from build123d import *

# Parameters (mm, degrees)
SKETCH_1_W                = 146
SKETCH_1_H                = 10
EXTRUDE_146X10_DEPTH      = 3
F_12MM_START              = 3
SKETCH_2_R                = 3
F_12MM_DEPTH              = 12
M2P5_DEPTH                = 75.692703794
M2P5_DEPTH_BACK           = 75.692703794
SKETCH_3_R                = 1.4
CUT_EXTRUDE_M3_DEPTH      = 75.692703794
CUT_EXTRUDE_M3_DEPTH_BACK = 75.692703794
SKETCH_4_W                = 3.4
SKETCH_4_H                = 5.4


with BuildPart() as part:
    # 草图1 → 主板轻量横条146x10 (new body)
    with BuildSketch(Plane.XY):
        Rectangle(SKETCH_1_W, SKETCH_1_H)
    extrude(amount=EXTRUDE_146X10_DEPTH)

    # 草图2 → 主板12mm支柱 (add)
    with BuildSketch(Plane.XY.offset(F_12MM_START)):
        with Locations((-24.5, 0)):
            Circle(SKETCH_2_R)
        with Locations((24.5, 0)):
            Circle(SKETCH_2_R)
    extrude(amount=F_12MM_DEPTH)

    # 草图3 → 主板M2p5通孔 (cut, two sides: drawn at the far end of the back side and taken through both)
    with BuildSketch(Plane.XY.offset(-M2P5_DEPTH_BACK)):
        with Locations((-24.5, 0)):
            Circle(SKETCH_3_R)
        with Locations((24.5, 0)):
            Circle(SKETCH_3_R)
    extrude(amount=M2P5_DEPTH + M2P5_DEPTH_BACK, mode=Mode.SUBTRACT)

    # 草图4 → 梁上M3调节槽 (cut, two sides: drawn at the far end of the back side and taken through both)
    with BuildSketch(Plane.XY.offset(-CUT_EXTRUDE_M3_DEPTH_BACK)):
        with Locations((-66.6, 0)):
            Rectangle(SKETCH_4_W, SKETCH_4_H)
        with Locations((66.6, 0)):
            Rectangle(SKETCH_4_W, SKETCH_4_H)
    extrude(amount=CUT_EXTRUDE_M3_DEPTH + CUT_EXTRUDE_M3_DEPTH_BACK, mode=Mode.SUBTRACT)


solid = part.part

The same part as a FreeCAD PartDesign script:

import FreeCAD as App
import Part
import Sketcher
from FreeCAD import Vector

doc = App.newDocument("Part")
body = doc.addObject("PartDesign::Body", "Body")

# Sketch on XY plane
sketch1 = body.newObject("Sketcher::SketchObject", "Sketch")
sketch1.AttachmentSupport = (doc.getObject("XY_Plane"), [""])
sketch1.MapMode = "FlatFace"
sketch1.addGeometry([
    Part.LineSegment(Vector(-73, 5, 0), Vector(-73, -5, 0)),
    Part.LineSegment(Vector(-73, -5, 0), Vector(73, -5, 0)),
    Part.LineSegment(Vector(73, -5, 0), Vector(73, 5, 0)),
    Part.LineSegment(Vector(73, 5, 0), Vector(-73, 5, 0)),
], False)
sketch1.addConstraint([
    Sketcher.Constraint("Coincident", 0, 2, 1, 1),
    Sketcher.Constraint("Coincident", 1, 2, 2, 1),
    Sketcher.Constraint("Coincident", 2, 2, 3, 1),
    Sketcher.Constraint("Coincident", 3, 2, 0, 1),
    Sketcher.Constraint("Vertical", 0),
    Sketcher.Constraint("Horizontal", 1),
    Sketcher.Constraint("Vertical", 2),
    Sketcher.Constraint("Horizontal", 3),
    Sketcher.Constraint("Symmetric", 0, 2, 2, 2, -1, 1),
    Sketcher.Constraint("DistanceX", 1, 1, 1, 2, 146.0),
    Sketcher.Constraint("DistanceY", 0, 2, 0, 1, 10.0),
])
pad1 = body.newObject("PartDesign::Pad", "Pad")
pad1.Profile = sketch1
pad1.Length = 3

# Sketch on XY plane
sketch2 = body.newObject("Sketcher::SketchObject", "Sketch001")
sketch2.AttachmentSupport = (doc.getObject("XY_Plane"), [""])
sketch2.MapMode = "FlatFace"
sketch2.AttachmentOffset = App.Placement(Vector(0, 0, 3), App.Rotation())
sketch2.addGeometry([
    Part.Circle(Vector(-24.5, 0, 0), Vector(0, 0, 1), 3),
    Part.Circle(Vector(24.5, 0, 0), Vector(0, 0, 1), 3),
], False)
sketch2.addConstraint([
    Sketcher.Constraint("Equal", 0, 1),
    Sketcher.Constraint("Symmetric", 0, 3, 1, 3, -1, 1),
    Sketcher.Constraint("PointOnObject", 0, 3, -1),
    Sketcher.Constraint("Diameter", 0, 6.0),
    Sketcher.Constraint("DistanceX", 0, 3, 1, 3, 49.0),
])
pad2 = body.newObject("PartDesign::Pad", "Pad001")
pad2.Profile = sketch2
pad2.Length = 12

# Sketch on XY plane
sketch3 = body.newObject("Sketcher::SketchObject", "Sketch002")
sketch3.AttachmentSupport = (doc.getObject("XY_Plane"), [""])
sketch3.MapMode = "FlatFace"
sketch3.addGeometry([
    Part.Circle(Vector(-24.5, 0, 0), Vector(0, 0, 1), 1.4),
    Part.Circle(Vector(24.5, 0, 0), Vector(0, 0, 1), 1.4),
], False)
sketch3.addConstraint([
    Sketcher.Constraint("Equal", 0, 1),
    Sketcher.Constraint("Symmetric", 0, 3, 1, 3, -1, 1),
    Sketcher.Constraint("PointOnObject", 0, 3, -1),
    Sketcher.Constraint("Diameter", 0, 2.8),
    Sketcher.Constraint("DistanceX", 0, 3, 1, 3, 49.0),
])
pocket1 = body.newObject("PartDesign::Pocket", "Pocket")
pocket1.Profile = sketch3
pocket1.Type = "ThroughAll"
pocket1.Midplane = True

# Sketch on XY plane
sketch4 = body.newObject("Sketcher::SketchObject", "Sketch003")
sketch4.AttachmentSupport = (doc.getObject("XY_Plane"), [""])
sketch4.MapMode = "FlatFace"
sketch4.addGeometry([
    Part.LineSegment(Vector(-68.3, 2.7, 0), Vector(-68.3, -2.7, 0)),  # 0
    Part.LineSegment(Vector(-68.3, -2.7, 0), Vector(-64.9, -2.7, 0)),  # 1
    Part.LineSegment(Vector(-64.9, -2.7, 0), Vector(-64.9, 2.7, 0)),  # 2
    Part.LineSegment(Vector(-64.9, 2.7, 0), Vector(-68.3, 2.7, 0)),  # 3
    Part.LineSegment(Vector(64.9, 2.7, 0), Vector(64.9, -2.7, 0)),  # 4
    Part.LineSegment(Vector(64.9, -2.7, 0), Vector(68.3, -2.7, 0)),  # 5
    Part.LineSegment(Vector(68.3, -2.7, 0), Vector(68.3, 2.7, 0)),  # 6
    Part.LineSegment(Vector(68.3, 2.7, 0), Vector(64.9, 2.7, 0)),  # 7
], False)
sketch4.addConstraint([
    Sketcher.Constraint("Coincident", 0, 2, 1, 1),
    Sketcher.Constraint("Coincident", 1, 2, 2, 1),
    Sketcher.Constraint("Coincident", 2, 2, 3, 1),
    Sketcher.Constraint("Coincident", 3, 2, 0, 1),
    Sketcher.Constraint("Coincident", 4, 2, 5, 1),
    Sketcher.Constraint("Coincident", 5, 2, 6, 1),
    Sketcher.Constraint("Coincident", 6, 2, 7, 1),
    Sketcher.Constraint("Coincident", 7, 2, 4, 1),
    Sketcher.Constraint("Vertical", 0),
    Sketcher.Constraint("Horizontal", 1),
    Sketcher.Constraint("Vertical", 2),
    Sketcher.Constraint("Horizontal", 3),
    Sketcher.Constraint("Vertical", 4),
    Sketcher.Constraint("Horizontal", 5),
    Sketcher.Constraint("Vertical", 6),
    Sketcher.Constraint("Horizontal", 7),
    Sketcher.Constraint("Symmetric", 2, 2, 4, 2, -1, 1),
    Sketcher.Constraint("Symmetric", 0, 2, 6, 2, -1, 1),
    Sketcher.Constraint("Horizontal", 1, 2, 4, 2),
    Sketcher.Constraint("DistanceX", 1, 1, 1, 2, 3.4),
    Sketcher.Constraint("DistanceY", 0, 2, 0, 1, 5.4),
    Sketcher.Constraint("DistanceX", 0, 2, -1, 1, 68.3),
])
pocket2 = body.newObject("PartDesign::Pocket", "Pocket001")
pocket2.Profile = sketch4
pocket2.Type = "ThroughAll"
pocket2.Midplane = True

doc.recompute()
